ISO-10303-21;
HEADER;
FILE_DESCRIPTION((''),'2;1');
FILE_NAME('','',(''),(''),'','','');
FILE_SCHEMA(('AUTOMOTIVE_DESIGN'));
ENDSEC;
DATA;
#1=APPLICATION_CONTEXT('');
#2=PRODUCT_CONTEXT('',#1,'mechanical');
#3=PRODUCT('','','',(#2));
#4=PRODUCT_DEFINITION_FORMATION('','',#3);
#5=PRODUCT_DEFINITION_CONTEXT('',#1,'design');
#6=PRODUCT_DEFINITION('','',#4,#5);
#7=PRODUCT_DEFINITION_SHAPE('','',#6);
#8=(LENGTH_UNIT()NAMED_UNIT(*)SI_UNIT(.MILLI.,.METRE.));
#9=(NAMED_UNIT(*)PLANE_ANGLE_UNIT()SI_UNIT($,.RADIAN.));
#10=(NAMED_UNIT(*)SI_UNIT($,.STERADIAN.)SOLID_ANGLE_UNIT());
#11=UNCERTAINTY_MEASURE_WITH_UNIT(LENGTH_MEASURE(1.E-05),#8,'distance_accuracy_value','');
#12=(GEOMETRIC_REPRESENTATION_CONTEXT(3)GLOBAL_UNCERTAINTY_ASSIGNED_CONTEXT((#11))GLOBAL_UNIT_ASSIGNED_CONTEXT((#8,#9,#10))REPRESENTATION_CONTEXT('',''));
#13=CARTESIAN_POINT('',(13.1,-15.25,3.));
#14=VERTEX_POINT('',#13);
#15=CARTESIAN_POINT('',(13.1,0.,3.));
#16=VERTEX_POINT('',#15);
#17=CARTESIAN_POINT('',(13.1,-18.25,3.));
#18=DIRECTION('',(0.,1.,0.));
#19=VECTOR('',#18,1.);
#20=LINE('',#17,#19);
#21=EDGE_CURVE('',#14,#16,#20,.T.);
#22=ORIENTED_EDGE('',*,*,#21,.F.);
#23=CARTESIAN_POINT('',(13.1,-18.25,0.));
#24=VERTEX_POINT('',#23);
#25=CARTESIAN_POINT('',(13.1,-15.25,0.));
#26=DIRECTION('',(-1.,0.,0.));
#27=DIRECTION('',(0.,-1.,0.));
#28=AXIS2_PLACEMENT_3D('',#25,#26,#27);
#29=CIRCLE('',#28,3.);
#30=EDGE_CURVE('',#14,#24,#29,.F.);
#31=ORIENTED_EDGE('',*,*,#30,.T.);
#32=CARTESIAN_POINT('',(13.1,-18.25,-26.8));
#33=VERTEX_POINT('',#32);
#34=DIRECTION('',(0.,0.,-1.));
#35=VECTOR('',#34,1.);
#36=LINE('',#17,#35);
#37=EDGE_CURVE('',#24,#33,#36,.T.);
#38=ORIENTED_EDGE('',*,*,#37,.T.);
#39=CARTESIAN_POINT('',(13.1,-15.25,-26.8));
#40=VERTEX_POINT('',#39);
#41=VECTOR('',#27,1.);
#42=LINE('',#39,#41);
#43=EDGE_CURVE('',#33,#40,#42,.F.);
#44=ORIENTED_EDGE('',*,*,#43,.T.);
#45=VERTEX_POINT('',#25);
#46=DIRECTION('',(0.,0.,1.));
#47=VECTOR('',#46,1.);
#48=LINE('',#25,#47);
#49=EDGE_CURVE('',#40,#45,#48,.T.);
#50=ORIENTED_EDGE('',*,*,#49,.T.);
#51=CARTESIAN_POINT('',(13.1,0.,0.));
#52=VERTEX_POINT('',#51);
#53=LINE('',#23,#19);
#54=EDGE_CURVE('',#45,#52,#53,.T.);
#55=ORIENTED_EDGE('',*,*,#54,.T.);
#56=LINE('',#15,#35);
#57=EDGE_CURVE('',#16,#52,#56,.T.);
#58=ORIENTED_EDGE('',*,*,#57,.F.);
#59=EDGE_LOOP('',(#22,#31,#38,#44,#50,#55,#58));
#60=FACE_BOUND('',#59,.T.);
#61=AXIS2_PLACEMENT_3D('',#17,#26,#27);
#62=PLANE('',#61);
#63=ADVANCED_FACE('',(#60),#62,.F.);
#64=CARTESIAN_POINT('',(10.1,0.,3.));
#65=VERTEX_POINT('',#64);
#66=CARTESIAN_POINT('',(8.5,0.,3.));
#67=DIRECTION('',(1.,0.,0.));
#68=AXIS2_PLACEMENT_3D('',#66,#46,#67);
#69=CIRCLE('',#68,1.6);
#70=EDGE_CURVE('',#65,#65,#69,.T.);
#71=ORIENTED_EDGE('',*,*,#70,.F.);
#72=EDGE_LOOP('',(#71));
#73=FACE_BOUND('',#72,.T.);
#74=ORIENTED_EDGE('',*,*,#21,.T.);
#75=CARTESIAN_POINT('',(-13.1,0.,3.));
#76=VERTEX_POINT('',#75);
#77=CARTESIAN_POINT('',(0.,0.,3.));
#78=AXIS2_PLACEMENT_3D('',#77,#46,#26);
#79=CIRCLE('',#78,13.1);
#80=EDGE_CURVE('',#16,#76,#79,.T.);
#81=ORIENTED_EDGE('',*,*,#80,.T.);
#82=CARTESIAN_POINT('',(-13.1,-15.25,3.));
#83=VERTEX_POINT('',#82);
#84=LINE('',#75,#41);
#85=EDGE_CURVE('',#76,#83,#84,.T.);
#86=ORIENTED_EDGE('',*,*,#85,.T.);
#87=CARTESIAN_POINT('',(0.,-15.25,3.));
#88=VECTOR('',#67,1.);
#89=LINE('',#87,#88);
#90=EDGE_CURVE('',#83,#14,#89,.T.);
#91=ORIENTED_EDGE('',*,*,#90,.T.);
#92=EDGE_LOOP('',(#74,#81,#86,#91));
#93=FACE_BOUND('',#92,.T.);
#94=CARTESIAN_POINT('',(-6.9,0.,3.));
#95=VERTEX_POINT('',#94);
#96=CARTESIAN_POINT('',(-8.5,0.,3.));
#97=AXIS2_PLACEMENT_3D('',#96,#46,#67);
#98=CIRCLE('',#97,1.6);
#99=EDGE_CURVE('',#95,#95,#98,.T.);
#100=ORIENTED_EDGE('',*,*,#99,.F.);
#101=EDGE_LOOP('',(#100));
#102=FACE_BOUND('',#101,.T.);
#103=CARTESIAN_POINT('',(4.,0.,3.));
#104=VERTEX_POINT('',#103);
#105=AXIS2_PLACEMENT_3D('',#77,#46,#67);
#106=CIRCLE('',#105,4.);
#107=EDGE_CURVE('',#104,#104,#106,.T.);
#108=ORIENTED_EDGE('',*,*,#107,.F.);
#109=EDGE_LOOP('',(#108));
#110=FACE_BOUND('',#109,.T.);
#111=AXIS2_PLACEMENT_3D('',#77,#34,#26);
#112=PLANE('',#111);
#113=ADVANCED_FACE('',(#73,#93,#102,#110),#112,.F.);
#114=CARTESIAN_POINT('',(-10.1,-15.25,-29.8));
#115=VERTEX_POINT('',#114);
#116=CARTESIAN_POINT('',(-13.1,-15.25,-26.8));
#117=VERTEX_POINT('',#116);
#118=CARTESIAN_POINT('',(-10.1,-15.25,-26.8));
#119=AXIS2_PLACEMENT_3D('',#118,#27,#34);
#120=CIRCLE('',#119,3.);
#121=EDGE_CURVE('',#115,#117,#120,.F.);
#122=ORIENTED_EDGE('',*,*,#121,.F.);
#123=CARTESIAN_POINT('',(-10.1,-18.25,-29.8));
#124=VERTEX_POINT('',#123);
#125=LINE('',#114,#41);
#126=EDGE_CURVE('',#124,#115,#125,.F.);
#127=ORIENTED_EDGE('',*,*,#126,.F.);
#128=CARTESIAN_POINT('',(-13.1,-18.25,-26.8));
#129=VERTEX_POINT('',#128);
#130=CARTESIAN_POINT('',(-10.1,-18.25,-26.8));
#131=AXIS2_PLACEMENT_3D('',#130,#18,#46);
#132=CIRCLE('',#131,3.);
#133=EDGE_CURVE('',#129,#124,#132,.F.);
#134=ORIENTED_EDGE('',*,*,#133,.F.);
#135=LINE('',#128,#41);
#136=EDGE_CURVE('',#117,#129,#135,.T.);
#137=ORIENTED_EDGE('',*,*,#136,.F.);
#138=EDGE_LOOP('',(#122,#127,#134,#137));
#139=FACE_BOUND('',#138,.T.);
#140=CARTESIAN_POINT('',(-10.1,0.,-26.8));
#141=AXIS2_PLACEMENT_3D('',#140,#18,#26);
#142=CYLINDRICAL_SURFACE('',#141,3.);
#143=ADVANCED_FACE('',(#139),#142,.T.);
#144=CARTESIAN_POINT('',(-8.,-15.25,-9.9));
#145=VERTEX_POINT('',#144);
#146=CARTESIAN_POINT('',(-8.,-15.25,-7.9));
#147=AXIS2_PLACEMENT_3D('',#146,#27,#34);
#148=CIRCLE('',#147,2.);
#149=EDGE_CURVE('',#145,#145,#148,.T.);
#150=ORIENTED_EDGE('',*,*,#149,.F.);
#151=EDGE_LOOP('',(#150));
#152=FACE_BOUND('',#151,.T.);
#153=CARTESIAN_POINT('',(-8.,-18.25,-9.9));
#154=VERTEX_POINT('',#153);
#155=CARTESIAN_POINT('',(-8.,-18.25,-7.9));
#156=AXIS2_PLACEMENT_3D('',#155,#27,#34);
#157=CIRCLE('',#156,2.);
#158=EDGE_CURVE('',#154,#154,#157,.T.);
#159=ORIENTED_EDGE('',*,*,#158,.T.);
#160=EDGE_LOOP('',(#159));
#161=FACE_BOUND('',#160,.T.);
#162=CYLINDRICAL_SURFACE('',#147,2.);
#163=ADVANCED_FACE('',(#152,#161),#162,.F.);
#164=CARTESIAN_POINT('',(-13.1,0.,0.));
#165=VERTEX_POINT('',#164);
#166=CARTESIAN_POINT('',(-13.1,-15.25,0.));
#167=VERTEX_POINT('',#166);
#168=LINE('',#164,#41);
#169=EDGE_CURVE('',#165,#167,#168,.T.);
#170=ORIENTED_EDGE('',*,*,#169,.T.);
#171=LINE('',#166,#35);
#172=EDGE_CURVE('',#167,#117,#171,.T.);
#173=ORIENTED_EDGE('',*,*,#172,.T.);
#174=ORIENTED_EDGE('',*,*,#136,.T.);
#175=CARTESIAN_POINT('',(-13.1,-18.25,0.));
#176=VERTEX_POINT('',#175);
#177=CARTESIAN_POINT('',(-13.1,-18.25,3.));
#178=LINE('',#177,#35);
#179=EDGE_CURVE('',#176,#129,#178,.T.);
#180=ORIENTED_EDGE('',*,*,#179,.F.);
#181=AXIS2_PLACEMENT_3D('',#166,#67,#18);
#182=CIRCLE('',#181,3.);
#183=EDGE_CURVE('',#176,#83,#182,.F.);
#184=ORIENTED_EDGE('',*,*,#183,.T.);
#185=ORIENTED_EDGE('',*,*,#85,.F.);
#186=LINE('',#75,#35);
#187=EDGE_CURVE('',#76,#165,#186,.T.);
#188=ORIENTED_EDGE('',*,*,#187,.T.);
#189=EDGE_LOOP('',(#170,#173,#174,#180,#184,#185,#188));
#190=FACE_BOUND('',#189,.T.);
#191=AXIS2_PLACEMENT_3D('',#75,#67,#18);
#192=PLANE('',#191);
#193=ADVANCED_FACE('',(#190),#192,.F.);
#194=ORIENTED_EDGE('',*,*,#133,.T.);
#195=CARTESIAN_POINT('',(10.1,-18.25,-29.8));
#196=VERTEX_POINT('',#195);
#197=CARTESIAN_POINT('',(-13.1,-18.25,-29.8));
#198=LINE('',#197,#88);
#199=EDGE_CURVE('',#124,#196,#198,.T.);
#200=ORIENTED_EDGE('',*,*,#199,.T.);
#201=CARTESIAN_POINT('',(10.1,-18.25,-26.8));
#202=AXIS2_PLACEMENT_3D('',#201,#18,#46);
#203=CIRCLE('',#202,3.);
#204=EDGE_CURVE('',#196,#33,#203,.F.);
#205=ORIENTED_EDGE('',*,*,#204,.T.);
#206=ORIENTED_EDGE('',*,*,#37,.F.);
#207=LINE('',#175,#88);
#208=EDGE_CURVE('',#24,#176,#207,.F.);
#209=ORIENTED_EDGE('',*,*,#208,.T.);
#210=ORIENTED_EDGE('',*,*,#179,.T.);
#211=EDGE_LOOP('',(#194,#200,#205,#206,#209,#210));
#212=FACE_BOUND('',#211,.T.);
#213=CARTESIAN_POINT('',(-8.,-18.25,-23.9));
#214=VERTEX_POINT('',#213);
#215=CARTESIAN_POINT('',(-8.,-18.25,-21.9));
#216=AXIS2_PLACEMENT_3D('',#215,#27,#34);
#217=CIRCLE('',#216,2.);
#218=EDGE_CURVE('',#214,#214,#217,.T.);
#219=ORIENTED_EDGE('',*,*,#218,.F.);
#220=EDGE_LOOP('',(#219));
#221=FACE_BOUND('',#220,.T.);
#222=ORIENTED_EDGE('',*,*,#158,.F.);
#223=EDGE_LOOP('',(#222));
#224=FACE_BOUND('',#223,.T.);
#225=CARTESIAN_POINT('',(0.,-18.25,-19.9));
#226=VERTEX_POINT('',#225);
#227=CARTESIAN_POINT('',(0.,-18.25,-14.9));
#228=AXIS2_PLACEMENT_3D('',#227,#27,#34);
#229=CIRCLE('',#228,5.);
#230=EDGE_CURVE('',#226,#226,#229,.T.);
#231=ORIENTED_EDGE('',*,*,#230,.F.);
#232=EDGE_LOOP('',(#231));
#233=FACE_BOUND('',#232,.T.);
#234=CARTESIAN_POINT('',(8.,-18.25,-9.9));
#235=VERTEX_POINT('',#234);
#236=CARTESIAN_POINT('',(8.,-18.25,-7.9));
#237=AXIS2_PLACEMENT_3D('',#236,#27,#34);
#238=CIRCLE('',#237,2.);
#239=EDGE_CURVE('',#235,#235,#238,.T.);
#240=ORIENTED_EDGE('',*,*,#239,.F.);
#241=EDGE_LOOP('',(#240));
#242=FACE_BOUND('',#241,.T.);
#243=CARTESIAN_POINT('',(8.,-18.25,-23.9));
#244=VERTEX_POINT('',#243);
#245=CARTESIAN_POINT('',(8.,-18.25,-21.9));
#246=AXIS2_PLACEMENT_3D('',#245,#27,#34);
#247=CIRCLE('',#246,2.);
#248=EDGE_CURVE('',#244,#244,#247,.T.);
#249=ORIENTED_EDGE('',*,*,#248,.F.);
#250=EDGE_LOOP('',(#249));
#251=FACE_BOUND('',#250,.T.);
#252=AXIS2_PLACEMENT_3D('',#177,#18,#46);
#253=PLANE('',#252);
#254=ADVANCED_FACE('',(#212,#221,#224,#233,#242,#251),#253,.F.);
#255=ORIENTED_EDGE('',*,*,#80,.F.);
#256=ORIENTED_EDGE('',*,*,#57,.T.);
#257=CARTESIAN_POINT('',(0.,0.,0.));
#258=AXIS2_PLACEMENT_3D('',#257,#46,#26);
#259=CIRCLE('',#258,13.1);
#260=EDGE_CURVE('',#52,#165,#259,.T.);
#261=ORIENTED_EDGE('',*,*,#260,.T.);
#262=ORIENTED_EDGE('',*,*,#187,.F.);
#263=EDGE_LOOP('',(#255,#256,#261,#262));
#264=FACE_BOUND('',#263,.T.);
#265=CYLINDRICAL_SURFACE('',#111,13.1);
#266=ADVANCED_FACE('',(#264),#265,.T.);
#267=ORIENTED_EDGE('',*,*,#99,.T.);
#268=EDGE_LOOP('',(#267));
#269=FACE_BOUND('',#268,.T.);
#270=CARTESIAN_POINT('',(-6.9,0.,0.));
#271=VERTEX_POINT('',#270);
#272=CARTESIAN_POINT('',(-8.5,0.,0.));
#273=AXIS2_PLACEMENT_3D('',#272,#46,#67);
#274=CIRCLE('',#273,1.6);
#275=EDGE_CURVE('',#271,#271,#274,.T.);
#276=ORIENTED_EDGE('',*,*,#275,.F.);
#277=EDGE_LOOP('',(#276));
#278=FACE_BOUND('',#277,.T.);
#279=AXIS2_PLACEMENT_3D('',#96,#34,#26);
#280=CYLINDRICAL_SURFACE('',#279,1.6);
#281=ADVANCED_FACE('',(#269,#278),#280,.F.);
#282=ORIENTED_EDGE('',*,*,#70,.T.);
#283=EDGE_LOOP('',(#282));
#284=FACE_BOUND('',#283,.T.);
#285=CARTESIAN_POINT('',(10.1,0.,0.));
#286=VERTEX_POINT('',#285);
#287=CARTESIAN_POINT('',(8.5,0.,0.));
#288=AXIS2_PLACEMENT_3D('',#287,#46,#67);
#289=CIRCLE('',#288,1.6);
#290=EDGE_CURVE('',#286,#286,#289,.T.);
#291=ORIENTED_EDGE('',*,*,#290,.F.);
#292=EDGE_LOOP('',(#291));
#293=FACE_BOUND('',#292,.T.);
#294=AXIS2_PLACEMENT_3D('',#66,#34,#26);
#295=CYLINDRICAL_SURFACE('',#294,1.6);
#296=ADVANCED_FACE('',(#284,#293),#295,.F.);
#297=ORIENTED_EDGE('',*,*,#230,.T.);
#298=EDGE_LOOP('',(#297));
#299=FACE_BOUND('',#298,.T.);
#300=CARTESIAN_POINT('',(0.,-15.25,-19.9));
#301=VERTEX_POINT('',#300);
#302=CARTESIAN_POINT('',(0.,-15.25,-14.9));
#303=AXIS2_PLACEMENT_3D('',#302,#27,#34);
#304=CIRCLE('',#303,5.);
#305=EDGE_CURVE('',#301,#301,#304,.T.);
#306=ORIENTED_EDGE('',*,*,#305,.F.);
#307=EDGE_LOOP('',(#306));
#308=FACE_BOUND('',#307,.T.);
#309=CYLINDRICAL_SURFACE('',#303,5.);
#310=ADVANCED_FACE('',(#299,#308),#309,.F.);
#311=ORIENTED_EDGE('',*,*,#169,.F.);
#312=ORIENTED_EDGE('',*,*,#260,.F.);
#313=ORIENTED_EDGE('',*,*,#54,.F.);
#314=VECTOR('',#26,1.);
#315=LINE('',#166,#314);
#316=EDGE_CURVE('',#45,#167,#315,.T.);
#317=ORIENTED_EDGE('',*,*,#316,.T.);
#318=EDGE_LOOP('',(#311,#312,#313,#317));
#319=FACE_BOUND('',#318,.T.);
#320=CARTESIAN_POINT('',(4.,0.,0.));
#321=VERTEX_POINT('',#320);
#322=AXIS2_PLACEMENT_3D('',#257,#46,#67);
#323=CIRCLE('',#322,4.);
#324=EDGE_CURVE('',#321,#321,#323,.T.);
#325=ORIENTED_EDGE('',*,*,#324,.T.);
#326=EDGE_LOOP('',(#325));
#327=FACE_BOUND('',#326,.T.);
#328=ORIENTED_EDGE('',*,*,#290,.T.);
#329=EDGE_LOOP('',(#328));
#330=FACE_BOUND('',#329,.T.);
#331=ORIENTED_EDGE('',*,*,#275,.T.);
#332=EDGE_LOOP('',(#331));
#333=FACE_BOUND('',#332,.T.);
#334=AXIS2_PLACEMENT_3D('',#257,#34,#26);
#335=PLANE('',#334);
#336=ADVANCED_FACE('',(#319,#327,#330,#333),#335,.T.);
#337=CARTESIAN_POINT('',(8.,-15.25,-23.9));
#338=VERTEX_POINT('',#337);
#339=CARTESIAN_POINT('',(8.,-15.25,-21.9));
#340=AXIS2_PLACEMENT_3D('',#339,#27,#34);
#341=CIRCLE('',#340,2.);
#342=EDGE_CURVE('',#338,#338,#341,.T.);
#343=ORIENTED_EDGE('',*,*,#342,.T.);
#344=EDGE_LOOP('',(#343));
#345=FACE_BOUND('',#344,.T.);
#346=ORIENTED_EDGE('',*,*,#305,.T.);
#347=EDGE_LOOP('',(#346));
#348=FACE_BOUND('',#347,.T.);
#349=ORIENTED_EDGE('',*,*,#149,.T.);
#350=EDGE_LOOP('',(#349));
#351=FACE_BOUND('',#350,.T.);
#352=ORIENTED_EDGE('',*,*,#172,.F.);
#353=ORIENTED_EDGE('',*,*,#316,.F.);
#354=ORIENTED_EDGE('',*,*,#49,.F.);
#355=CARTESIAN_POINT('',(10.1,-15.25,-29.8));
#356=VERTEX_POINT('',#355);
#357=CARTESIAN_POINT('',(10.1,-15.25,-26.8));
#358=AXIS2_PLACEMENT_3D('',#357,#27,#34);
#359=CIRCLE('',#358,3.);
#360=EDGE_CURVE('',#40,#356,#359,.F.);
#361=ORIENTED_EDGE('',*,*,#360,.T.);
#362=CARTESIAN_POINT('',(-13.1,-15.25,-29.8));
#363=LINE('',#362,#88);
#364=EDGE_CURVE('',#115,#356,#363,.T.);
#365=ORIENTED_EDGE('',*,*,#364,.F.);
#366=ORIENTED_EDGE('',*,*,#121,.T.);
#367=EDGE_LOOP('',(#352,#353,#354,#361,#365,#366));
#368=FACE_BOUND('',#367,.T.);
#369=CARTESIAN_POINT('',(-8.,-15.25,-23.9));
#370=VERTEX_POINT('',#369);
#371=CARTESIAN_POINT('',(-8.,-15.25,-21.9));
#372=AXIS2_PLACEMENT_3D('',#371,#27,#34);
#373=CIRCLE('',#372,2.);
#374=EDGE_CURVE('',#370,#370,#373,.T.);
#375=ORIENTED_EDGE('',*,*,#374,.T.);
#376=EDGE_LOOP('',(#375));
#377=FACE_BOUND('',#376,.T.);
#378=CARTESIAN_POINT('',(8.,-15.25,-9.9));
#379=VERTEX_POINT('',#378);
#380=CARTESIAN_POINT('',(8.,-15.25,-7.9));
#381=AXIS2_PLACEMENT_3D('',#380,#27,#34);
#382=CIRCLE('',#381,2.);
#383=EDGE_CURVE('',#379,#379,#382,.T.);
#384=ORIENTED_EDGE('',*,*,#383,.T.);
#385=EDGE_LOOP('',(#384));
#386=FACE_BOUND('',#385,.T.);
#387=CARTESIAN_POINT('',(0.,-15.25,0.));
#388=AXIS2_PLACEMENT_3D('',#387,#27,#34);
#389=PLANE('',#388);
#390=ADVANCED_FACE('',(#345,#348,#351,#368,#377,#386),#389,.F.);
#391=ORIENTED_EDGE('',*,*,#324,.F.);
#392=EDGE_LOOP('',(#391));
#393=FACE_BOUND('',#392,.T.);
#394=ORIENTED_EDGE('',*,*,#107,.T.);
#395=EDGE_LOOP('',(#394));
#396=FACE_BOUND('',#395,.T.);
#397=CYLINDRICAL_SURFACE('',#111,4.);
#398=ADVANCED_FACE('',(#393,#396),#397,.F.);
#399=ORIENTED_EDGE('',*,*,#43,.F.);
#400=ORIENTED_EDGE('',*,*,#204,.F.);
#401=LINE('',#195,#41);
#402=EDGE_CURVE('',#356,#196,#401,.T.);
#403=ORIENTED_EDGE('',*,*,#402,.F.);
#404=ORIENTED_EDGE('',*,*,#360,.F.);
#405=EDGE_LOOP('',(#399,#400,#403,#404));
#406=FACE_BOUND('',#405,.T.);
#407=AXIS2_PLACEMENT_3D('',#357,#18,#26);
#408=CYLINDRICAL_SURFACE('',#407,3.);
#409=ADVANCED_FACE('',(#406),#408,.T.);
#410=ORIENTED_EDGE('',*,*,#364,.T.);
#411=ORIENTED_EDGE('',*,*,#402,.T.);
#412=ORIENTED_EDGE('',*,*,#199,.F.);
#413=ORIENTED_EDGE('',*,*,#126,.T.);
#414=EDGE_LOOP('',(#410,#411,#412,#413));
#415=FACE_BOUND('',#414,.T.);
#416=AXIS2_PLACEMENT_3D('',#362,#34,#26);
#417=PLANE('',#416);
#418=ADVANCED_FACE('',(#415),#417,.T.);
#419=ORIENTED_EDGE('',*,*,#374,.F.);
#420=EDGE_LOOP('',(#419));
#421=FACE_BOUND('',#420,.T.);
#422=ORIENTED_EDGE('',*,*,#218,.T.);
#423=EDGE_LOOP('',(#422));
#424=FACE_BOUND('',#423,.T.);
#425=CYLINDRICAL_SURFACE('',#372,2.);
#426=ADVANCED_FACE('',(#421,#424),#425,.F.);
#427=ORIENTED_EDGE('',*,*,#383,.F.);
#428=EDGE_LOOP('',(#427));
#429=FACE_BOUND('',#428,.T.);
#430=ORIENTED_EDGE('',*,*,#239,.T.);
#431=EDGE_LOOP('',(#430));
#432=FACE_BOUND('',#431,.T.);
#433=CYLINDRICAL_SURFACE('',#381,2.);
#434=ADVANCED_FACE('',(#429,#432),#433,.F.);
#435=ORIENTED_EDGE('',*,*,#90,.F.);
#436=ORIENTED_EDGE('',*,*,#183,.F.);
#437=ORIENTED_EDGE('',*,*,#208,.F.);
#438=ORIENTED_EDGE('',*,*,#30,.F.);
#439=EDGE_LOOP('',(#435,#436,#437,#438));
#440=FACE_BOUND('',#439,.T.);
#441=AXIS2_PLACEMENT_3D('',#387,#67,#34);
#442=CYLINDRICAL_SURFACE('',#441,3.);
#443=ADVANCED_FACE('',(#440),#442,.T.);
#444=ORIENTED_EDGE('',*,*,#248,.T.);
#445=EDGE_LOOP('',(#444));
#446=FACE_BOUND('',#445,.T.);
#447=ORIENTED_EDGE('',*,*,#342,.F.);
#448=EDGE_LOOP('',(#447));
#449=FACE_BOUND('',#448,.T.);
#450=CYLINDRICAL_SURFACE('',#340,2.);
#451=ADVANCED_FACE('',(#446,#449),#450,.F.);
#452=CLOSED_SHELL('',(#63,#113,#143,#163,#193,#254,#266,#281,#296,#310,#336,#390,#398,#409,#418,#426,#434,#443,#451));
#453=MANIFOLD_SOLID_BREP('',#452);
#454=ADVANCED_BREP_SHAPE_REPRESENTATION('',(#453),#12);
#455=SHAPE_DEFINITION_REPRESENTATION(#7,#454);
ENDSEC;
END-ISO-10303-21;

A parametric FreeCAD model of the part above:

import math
import FreeCAD as App
import Part
import Sketcher


def edges_at(feature, points):
    """Names of the edges that pass closest to the given points."""
    edges = feature.Shape.Edges
    near = lambda p: min(range(len(edges)), key=lambda i: edges[i].distToShape(Part.Vertex(*p))[0])
    return sorted({f"Edge{near(p) + 1}" for p in points})

doc = App.newDocument("Part")
body = doc.addObject("PartDesign::Body", "Body")

# Sketch on XY plane
sketch1 = body.newObject("Sketcher::SketchObject", "Sketch")
sketch1.AttachmentSupport = (doc.getObject("XY_Plane"), [""])
sketch1.MapMode = "FlatFace"
sketch1.addGeometry(Part.LineSegment(App.Vector(-13.1, 0, 0), App.Vector(-13.1, -18.2, 0)), False)
sketch1.addGeometry(Part.LineSegment(App.Vector(-13.1, -18.2, 0), App.Vector(13.1, -18.2, 0)), False)
sketch1.addGeometry(Part.LineSegment(App.Vector(13.1, -18.2, 0), App.Vector(13.1, 0, 0)), False)
sketch1.addGeometry(Part.ArcOfCircle(Part.Circle(App.Vector(0, 0, 0), App.Vector(0, 0, 1), 13.1), math.radians(0), math.radians(180)), False)
sketch1.addGeometry(Part.Circle(App.Vector(-8.5, 0, 0), App.Vector(0, 0, 1), 1.6), False)
sketch1.addGeometry(Part.Circle(App.Vector(0, 0, 0), App.Vector(0, 0, 1), 4), False)
sketch1.addGeometry(Part.Circle(App.Vector(8.5, 0, 0), App.Vector(0, 0, 1), 1.6), False)
sketch1.addConstraint(Sketcher.Constraint("Coincident", 0, 2, 1, 1))
sketch1.addConstraint(Sketcher.Constraint("Coincident", 1, 2, 2, 1))
sketch1.addConstraint(Sketcher.Constraint("Tangent", 2, 2, 3, 1))
sketch1.addConstraint(Sketcher.Constraint("Tangent", 3, 2, 0, 1))
sketch1.addConstraint(Sketcher.Constraint("Vertical", 0))
sketch1.addConstraint(Sketcher.Constraint("Horizontal", 1))
sketch1.addConstraint(Sketcher.Constraint("Vertical", 2))
sketch1.addConstraint(Sketcher.Constraint("Coincident", 3, 3, -1, 1))
sketch1.addConstraint(Sketcher.Constraint("Coincident", 5, 3, -1, 1))
sketch1.addConstraint(Sketcher.Constraint("Equal", 4, 6))
sketch1.addConstraint(Sketcher.Constraint("Symmetric", 4, 3, 6, 3, -1, 1))
sketch1.addConstraint(Sketcher.Constraint("PointOnObject", 4, 3, -1))
sketch1.addConstraint(Sketcher.Constraint("Diameter", 5, 8.0))
sketch1.addConstraint(Sketcher.Constraint("Diameter", 4, 3.2))
sketch1.addConstraint(Sketcher.Constraint("Radius", 3, 13.1))
sketch1.addConstraint(Sketcher.Constraint("DistanceX", 4, 3, 6, 3, 17.0))
sketch1.addConstraint(Sketcher.Constraint("DistanceY", 0, 2, 0, 1, 18.25))
pad1 = body.newObject("PartDesign::Pad", "Pad")
pad1.Profile = sketch1
pad1.Length = 3

# Sketch on XZ plane
sketch2 = body.newObject("Sketcher::SketchObject", "Sketch001")
sketch2.AttachmentSupport = (doc.getObject("XZ_Plane"), [""])
sketch2.MapMode = "FlatFace"
sketch2.AttachmentOffset = App.Placement(App.Vector(0, 0, 18.25), App.Rotation())
sketch2.addGeometry(Part.LineSegment(App.Vector(-13.1, 0, 0), App.Vector(-13.1, -29.8, 0)), False)
sketch2.addGeometry(Part.LineSegment(App.Vector(-13.1, -29.8, 0), App.Vector(13.1, -29.8, 0)), False)
sketch2.addGeometry(Part.LineSegment(App.Vector(13.1, -29.8, 0), App.Vector(13.1, 0, 0)), False)
sketch2.addGeometry(Part.LineSegment(App.Vector(13.1, 0, 0), App.Vector(-13.1, 0, 0)), False)
sketch2.addGeometry(Part.Circle(App.Vector(-8, -21.9, 0), App.Vector(0, 0, 1), 2), False)
sketch2.addGeometry(Part.Circle(App.Vector(8, -21.9, 0), App.Vector(0, 0, 1), 2), False)
sketch2.addGeometry(Part.Circle(App.Vector(0, -14.9, 0), App.Vector(0, 0, 1), 5), False)
sketch2.addGeometry(Part.Circle(App.Vector(-8, -7.9, 0), App.Vector(0, 0, 1), 2), False)
sketch2.addGeometry(Part.Circle(App.Vector(8, -7.9, 0), App.Vector(0, 0, 1), 2), False)
sketch2.addConstraint(Sketcher.Constraint("Coincident", 0, 2, 1, 1))
sketch2.addConstraint(Sketcher.Constraint("Coincident", 1, 2, 2, 1))
sketch2.addConstraint(Sketcher.Constraint("Coincident", 2, 2, 3, 1))
sketch2.addConstraint(Sketcher.Constraint("Coincident", 3, 2, 0, 1))
sketch2.addConstraint(Sketcher.Constraint("Vertical", 0))
sketch2.addConstraint(Sketcher.Constraint("Horizontal", 1))
sketch2.addConstraint(Sketcher.Constraint("Vertical", 2))
sketch2.addConstraint(Sketcher.Constraint("Horizontal", 3))
sketch2.addConstraint(Sketcher.Constraint("Equal", 4, 5))
sketch2.addConstraint(Sketcher.Constraint("Equal", 5, 7))
sketch2.addConstraint(Sketcher.Constraint("Equal", 7, 8))
sketch2.addConstraint(Sketcher.Constraint("Symmetric", 2, 2, 3, 2, -1, 1))
sketch2.addConstraint(Sketcher.Constraint("Symmetric", 4, 3, 5, 3, -2))
sketch2.addConstraint(Sketcher.Constraint("Symmetric", 7, 3, 8, 3, -2))
sketch2.addConstraint(Sketcher.Constraint("PointOnObject", 6, 3, -2))
sketch2.addConstraint(Sketcher.Constraint("Vertical", 4, 3, 7, 3))
sketch2.addConstraint(Sketcher.Constraint("Diameter", 4, 4.0))
sketch2.addConstraint(Sketcher.Constraint("Diameter", 6, 10.0))
sketch2.addConstraint(Sketcher.Constraint("DistanceX", 1, 1, 1, 2, 26.2))
sketch2.addConstraint(Sketcher.Constraint("DistanceY", 0, 2, 0, 1, 29.8))
sketch2.addConstraint(Sketcher.Constraint("DistanceX", 4, 3, -1, 1, 8.0))
sketch2.addConstraint(Sketcher.Constraint("DistanceY", 4, 3, 6, 3, 7.0))
sketch2.addConstraint(Sketcher.Constraint("DistanceY", 6, 3, 7, 3, 7.0))
sketch2.addConstraint(Sketcher.Constraint("DistanceY", 4, 3, -1, 1, 21.9))
pad2 = body.newObject("PartDesign::Pad", "Pad001")
pad2.Profile = sketch2
pad2.Length = 3
pad2.Reversed = True
doc.recompute()

fillet = body.newObject("PartDesign::Fillet", "Fillet")
fillet.Base = (pad2, edges_at(pad2, [(0, -18.25, 3)]))
fillet.Radius = 3
doc.recompute()

fillet2 = body.newObject("PartDesign::Fillet", "Fillet001")
fillet2.Base = (fillet, edges_at(fillet, [(-13.1, -16.75, -29.8), (13.1, -16.75, -29.8)]))
fillet2.Radius = 3

doc.recompute()
